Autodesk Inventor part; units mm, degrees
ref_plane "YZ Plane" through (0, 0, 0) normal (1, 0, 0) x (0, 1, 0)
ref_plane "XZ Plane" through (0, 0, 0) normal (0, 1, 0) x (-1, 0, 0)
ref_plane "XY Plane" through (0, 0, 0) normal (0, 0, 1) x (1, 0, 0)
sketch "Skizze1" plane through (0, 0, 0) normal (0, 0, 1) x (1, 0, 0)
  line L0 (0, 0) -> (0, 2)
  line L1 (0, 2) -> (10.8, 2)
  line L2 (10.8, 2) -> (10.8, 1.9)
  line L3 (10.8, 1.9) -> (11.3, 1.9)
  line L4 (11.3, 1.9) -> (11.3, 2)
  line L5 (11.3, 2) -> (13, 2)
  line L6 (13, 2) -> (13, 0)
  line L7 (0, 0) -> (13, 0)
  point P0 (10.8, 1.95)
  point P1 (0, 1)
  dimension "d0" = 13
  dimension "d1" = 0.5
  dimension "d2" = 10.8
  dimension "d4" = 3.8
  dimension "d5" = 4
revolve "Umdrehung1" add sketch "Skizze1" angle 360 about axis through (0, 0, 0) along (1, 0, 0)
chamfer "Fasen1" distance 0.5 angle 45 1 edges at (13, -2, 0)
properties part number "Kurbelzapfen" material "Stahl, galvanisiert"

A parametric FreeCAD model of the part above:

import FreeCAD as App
import Part
import Sketcher
from FreeCAD import Vector
Q = App.Units.Quantity


def edges_at(feature, points):
    """Names of the edges that pass closest to the given points."""
    edges = feature.Shape.Edges
    near = lambda p: min(range(len(edges)), key=lambda i: edges[i].distToShape(Part.Vertex(*p))[0])
    return sorted({f"Edge{near(p) + 1}" for p in points})

doc = App.newDocument("Part")
body = doc.addObject("PartDesign::Body", "Body")

sketch1 = body.newObject("Sketcher::SketchObject", "Sketch")
sketch1.AttachmentSupport = (doc.getObject("XY_Plane"), [""])
sketch1.MapMode = "FlatFace"
sketch1.addGeometry([
    Part.LineSegment(Vector(0, 2, 0), Vector(0, 0, 0)),
    Part.LineSegment(Vector(0, 0, 0), Vector(13, 0, 0)),
    Part.LineSegment(Vector(13, 0, 0), Vector(13, 2, 0)),
    Part.LineSegment(Vector(13, 2, 0), Vector(11.3, 2, 0)),
    Part.LineSegment(Vector(11.3, 2, 0), Vector(11.3, 1.9, 0)),
    Part.LineSegment(Vector(11.3, 1.9, 0), Vector(10.8, 1.9, 0)),
    Part.LineSegment(Vector(10.8, 1.9, 0), Vector(10.8, 2, 0)),
    Part.LineSegment(Vector(10.8, 2, 0), Vector(0, 2, 0)),
], False)
sketch1.addConstraint([
    Sketcher.Constraint("Coincident", 0, 2, 1, 1),
    Sketcher.Constraint("Coincident", 1, 2, 2, 1),
    Sketcher.Constraint("Coincident", 2, 2, 3, 1),
    Sketcher.Constraint("Coincident", 3, 2, 4, 1),
    Sketcher.Constraint("Coincident", 4, 2, 5, 1),
    Sketcher.Constraint("Coincident", 5, 2, 6, 1),
    Sketcher.Constraint("Coincident", 6, 2, 7, 1),
    Sketcher.Constraint("Coincident", 7, 2, 0, 1),
    Sketcher.Constraint("Vertical", 0),
    Sketcher.Constraint("Horizontal", 1),
    Sketcher.Constraint("Vertical", 2),
    Sketcher.Constraint("Horizontal", 3),
    Sketcher.Constraint("Vertical", 4),
    Sketcher.Constraint("Horizontal", 5),
    Sketcher.Constraint("Vertical", 6),
    Sketcher.Constraint("Horizontal", 7),
    Sketcher.Constraint("Coincident", 0, 2, -1, 1),
    Sketcher.Constraint("Horizontal", 3, 2, 6, 2),
    Sketcher.Constraint("DistanceX", 1, 1, 1, 2, Q("13 mm")),
    Sketcher.Constraint("DistanceX", 5, 2, 5, 1, Q("0.5 mm")),
    Sketcher.Constraint("DistanceX", 7, 2, 7, 1, Q("10.8 mm")),
    Sketcher.Constraint("DistanceY", 0, 2, 0, 1, Q("2 mm")),
    Sketcher.Constraint("DistanceY", 4, 2, 4, 1, Q("0.1 mm")),
])
revolution = body.newObject("PartDesign::Revolution", "Revolution")
revolution.Profile = sketch1
revolution.ReferenceAxis = (sketch1, ["H_Axis"])
revolution.Angle = 360
doc.recompute()

chamfer = body.newObject("PartDesign::Chamfer", "Chamfer")
chamfer.Base = (revolution, edges_at(revolution, [(13, -2, 0)]))
chamfer.Size = 0.5

doc.recompute()
